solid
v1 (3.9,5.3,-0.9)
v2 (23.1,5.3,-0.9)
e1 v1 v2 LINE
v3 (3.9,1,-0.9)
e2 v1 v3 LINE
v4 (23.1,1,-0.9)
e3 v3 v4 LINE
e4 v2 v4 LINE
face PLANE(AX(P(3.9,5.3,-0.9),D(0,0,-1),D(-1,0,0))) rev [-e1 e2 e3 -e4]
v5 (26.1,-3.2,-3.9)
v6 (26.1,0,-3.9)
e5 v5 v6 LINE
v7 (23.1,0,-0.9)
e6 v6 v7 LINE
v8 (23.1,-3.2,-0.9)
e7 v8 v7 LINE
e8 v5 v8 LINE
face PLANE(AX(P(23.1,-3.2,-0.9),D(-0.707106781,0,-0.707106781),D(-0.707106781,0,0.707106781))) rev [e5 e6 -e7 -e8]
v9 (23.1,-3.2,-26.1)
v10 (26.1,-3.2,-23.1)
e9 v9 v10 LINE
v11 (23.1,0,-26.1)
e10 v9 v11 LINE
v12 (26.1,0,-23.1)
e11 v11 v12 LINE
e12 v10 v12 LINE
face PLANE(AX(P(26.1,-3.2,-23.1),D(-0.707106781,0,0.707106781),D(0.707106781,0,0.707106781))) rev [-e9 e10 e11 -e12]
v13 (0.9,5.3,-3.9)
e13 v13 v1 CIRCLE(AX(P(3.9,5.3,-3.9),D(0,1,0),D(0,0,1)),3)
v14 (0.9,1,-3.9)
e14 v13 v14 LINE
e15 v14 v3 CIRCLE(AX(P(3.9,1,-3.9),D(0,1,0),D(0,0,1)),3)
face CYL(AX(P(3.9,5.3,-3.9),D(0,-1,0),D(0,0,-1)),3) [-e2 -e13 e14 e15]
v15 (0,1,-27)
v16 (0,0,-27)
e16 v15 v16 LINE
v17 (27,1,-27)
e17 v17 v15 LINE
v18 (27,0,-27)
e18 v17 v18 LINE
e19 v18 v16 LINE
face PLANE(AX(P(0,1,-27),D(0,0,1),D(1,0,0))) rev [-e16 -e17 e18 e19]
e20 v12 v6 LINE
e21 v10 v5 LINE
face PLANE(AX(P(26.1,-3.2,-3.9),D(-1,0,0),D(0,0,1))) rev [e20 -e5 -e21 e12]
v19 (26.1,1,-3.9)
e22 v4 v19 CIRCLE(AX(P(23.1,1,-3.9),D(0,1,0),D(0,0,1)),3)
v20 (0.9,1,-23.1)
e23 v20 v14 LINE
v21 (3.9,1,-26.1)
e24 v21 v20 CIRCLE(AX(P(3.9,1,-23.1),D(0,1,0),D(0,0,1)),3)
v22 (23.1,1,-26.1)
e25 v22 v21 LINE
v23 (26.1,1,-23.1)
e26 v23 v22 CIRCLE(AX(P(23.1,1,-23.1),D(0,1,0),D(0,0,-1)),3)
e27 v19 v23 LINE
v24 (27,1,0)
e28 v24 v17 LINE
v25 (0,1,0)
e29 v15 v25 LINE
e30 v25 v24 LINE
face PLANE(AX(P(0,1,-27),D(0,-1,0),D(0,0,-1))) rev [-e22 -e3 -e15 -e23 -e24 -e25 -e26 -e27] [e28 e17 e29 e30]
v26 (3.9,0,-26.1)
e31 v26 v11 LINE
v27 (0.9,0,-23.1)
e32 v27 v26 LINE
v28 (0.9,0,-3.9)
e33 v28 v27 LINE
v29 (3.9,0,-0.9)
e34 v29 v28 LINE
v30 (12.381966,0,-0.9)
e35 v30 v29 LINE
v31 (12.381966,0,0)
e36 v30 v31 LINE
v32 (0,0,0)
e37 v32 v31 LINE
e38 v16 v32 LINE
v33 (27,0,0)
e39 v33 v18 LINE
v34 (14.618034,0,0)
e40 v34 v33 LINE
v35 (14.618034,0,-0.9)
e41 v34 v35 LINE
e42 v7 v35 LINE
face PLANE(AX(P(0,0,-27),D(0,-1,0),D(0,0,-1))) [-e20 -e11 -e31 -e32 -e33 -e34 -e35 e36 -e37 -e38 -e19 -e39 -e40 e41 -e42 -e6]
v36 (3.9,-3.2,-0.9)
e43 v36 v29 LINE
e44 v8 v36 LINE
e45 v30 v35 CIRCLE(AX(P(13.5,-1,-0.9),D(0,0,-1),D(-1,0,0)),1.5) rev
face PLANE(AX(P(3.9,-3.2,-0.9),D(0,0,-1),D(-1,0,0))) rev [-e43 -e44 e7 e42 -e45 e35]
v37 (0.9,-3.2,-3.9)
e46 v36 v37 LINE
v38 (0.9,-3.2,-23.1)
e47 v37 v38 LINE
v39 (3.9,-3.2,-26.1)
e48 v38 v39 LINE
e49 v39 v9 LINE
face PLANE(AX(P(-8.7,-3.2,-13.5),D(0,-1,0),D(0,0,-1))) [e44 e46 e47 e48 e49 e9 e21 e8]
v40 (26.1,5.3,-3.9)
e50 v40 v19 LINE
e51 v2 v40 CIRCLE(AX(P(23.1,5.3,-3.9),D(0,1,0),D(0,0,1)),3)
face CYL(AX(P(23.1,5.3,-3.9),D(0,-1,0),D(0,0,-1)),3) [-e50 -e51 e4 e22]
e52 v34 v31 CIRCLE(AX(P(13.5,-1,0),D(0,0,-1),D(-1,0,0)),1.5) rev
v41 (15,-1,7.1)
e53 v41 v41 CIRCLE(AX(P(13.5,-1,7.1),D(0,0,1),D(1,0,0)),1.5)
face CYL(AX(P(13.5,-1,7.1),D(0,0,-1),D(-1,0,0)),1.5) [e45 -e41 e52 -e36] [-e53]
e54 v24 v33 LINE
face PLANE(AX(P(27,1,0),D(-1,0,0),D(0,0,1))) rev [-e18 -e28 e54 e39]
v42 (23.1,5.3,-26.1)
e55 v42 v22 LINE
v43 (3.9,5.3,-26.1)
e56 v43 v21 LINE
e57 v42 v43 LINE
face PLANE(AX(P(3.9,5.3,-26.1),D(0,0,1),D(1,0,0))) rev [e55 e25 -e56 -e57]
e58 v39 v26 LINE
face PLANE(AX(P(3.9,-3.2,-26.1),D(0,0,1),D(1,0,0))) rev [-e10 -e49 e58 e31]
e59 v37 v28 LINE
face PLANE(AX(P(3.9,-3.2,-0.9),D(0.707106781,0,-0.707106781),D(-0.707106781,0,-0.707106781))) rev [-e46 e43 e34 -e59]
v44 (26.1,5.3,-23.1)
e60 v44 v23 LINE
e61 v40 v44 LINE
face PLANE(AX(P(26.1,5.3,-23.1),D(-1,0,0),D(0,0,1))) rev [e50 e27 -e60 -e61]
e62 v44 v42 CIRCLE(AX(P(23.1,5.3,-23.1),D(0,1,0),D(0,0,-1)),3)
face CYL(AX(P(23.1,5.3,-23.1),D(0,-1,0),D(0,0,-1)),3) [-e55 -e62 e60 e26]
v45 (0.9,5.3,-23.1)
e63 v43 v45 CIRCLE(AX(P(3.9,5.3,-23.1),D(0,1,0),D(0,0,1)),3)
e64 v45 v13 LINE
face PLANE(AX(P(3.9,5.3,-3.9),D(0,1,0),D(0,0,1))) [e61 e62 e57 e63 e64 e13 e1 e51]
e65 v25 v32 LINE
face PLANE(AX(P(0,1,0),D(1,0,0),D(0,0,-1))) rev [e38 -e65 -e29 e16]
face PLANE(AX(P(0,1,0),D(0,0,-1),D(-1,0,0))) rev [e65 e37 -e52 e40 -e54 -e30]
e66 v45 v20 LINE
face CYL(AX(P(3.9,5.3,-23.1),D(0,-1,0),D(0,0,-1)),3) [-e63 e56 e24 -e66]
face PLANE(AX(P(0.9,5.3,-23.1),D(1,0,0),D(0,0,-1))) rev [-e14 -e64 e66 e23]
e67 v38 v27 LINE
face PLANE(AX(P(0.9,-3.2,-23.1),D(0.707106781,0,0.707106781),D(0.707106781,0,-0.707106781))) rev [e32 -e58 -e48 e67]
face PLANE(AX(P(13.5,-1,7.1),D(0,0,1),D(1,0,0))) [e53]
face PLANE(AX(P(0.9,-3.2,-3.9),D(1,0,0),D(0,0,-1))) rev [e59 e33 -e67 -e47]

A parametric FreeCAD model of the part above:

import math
import FreeCAD as App
import Part
import Sketcher
from FreeCAD import Vector

doc = App.newDocument("Part")
body = doc.addObject("PartDesign::Body", "Body")

# Sketch on XZ plane
sketch1 = doc.addObject("Sketcher::SketchObject", "Sketch")
body.addObject(sketch1)
sketch1.AttachmentSupport = (doc.XZ_Plane, [""])
sketch1.MapMode = "FlatFace"
sketch1.addGeometry([
    Part.LineSegment(Vector(0, -27, 0), Vector(0, 0, 0)),
    Part.LineSegment(Vector(0, 0, 0), Vector(27, 0, 0)),
    Part.LineSegment(Vector(27, 0, 0), Vector(27, -27, 0)),
    Part.LineSegment(Vector(27, -27, 0), Vector(0, -27, 0)),
], False)
sketch1.addConstraint([
    Sketcher.Constraint("Coincident", 0, 2, 1, 1),
    Sketcher.Constraint("Coincident", 1, 2, 2, 1),
    Sketcher.Constraint("Coincident", 2, 2, 3, 1),
    Sketcher.Constraint("Coincident", 3, 2, 0, 1),
    Sketcher.Constraint("Vertical", 0),
    Sketcher.Constraint("Horizontal", 1),
    Sketcher.Constraint("Vertical", 2),
    Sketcher.Constraint("Horizontal", 3),
    Sketcher.Constraint("Coincident", 0, 2, -1, 1),
    Sketcher.Constraint("Equal", 3, 0),
    Sketcher.Constraint("DistanceX", 1, 1, 1, 2, 27.0),
])
pad1 = doc.addObject("PartDesign::Pad", "Pad")
body.addObject(pad1)
pad1.Profile = sketch1
pad1.Length = 1
pad1.Reversed = True

# Sketch on XZ plane
sketch2 = doc.addObject("Sketcher::SketchObject", "Sketch001")
body.addObject(sketch2)
sketch2.AttachmentSupport = (doc.XZ_Plane, [""])
sketch2.MapMode = "FlatFace"
sketch2.AttachmentOffset = App.Placement(Vector(0, 0, -1), App.Rotation())
sketch2.addGeometry([
    Part.LineSegment(Vector(23.1, -26.1, 0), Vector(3.9, -26.1, 0)),  # 0
    Part.ArcOfCircle(Part.Circle(Vector(3.9, -23.1, 0), Vector(0, 0, 1), 3), math.radians(180), math.radians(270)),  # 1
    Part.LineSegment(Vector(0.9, -23.1, 0), Vector(0.9, -3.9, 0)),  # 2
    Part.ArcOfCircle(Part.Circle(Vector(3.9, -3.9, 0), Vector(0, 0, 1), 3), math.radians(90), math.radians(180)),  # 3
    Part.LineSegment(Vector(3.9, -0.9, 0), Vector(23.1, -0.9, 0)),  # 4
    Part.ArcOfCircle(Part.Circle(Vector(23.1, -3.9, 0), Vector(0, 0, 1), 3), math.radians(0), math.radians(90)),  # 5
    Part.LineSegment(Vector(26.1, -3.9, 0), Vector(26.1, -23.1, 0)),  # 6
    Part.ArcOfCircle(Part.Circle(Vector(23.1, -23.1, 0), Vector(0, 0, 1), 3), math.radians(-90), math.radians(0)),  # 7
], False)
sketch2.addConstraint([
    Sketcher.Constraint("Tangent", 0, 2, 1, 2),
    Sketcher.Constraint("Tangent", 1, 1, 2, 1),
    Sketcher.Constraint("Tangent", 2, 2, 3, 2),
    Sketcher.Constraint("Tangent", 3, 1, 4, 1),
    Sketcher.Constraint("Tangent", 4, 2, 5, 2),
    Sketcher.Constraint("Tangent", 5, 1, 6, 1),
    Sketcher.Constraint("Tangent", 6, 2, 7, 2),
    Sketcher.Constraint("Tangent", 7, 1, 0, 1),
    Sketcher.Constraint("Horizontal", 0),
    Sketcher.Constraint("Vertical", 2),
    Sketcher.Constraint("Horizontal", 4),
    Sketcher.Constraint("Vertical", 6),
    Sketcher.Constraint("Equal", 1, 3),
    Sketcher.Constraint("Equal", 3, 5),
    Sketcher.Constraint("Equal", 5, 7),
    Sketcher.Constraint("Equal", 4, 2),
    Sketcher.Constraint("Radius", 1, 3.0),
    Sketcher.Constraint("DistanceX", 0, 2, 0, 1, 19.2),
    Sketcher.Constraint("DistanceX", -1, 1, 1, 3, 3.9),
    Sketcher.Constraint("DistanceY", 1, 3, -1, 1, 23.1),
])
pad2 = doc.addObject("PartDesign::Pad", "Pad001")
body.addObject(pad2)
pad2.Profile = sketch2
pad2.Length = 4.3
pad2.Reversed = True

# Sketch on XZ plane
sketch3 = doc.addObject("Sketcher::SketchObject", "Sketch002")
body.addObject(sketch3)
sketch3.AttachmentSupport = (doc.XZ_Plane, [""])
sketch3.MapMode = "FlatFace"
sketch3.addGeometry([
    Part.LineSegment(Vector(23.1, -0.9, 0), Vector(3.9, -0.9, 0)),  # 0
    Part.LineSegment(Vector(3.9, -0.9, 0), Vector(0.9, -3.9, 0)),  # 1
    Part.LineSegment(Vector(0.9, -3.9, 0), Vector(0.9, -23.1, 0)),  # 2
    Part.LineSegment(Vector(0.9, -23.1, 0), Vector(3.9, -26.1, 0)),  # 3
    Part.LineSegment(Vector(3.9, -26.1, 0), Vector(23.1, -26.1, 0)),  # 4
    Part.LineSegment(Vector(23.1, -26.1, 0), Vector(26.1, -23.1, 0)),  # 5
    Part.LineSegment(Vector(26.1, -23.1, 0), Vector(26.1, -3.9, 0)),  # 6
    Part.LineSegment(Vector(26.1, -3.9, 0), Vector(23.1, -0.9, 0)),  # 7
], False)
sketch3.addConstraint([
    Sketcher.Constraint("Coincident", 0, 2, 1, 1),
    Sketcher.Constraint("Coincident", 1, 2, 2, 1),
    Sketcher.Constraint("Coincident", 2, 2, 3, 1),
    Sketcher.Constraint("Coincident", 3, 2, 4, 1),
    Sketcher.Constraint("Coincident", 4, 2, 5, 1),
    Sketcher.Constraint("Coincident", 5, 2, 6, 1),
    Sketcher.Constraint("Coincident", 6, 2, 7, 1),
    Sketcher.Constraint("Coincident", 7, 2, 0, 1),
    Sketcher.Constraint("Horizontal", 0),
    Sketcher.Constraint("Vertical", 2),
    Sketcher.Constraint("Horizontal", 4),
    Sketcher.Constraint("Vertical", 6),
    Sketcher.Constraint("Perpendicular", 1, 3),
    Sketcher.Constraint("Perpendicular", 3, 5),
    Sketcher.Constraint("Perpendicular", 5, 7),
    Sketcher.Constraint("Horizontal", 2, 2, 5, 2),
    Sketcher.Constraint("Horizontal", 1, 2, 6, 2),
    Sketcher.Constraint("Vertical", 0, 2, 3, 2),
    Sketcher.Constraint("Vertical", 4, 2, 7, 2),
    Sketcher.Constraint("Equal", 4, 2),
    Sketcher.Constraint("DistanceX", 0, 2, 0, 1, 19.2),
    Sketcher.Constraint("DistanceX", 1, 2, 0, 2, 3.0),
    Sketcher.Constraint("DistanceX", -1, 1, 0, 2, 3.9),
    Sketcher.Constraint("DistanceY", 0, 2, -1, 1, 0.9),
])
pad3 = doc.addObject("PartDesign::Pad", "Pad002")
body.addObject(pad3)
pad3.Profile = sketch3
pad3.Length = 3.2

# Sketch on XY plane
sketch4 = doc.addObject("Sketcher::SketchObject", "Sketch003")
body.addObject(sketch4)
sketch4.AttachmentSupport = (doc.XY_Plane, [""])
sketch4.MapMode = "FlatFace"
sketch4.AttachmentOffset = App.Placement(Vector(0, 0, -0.9), App.Rotation())
sketch4.addGeometry(Part.Circle(Vector(13.5, -1, 0), Vector(0, 0, 1), 1.5), False)
sketch4.addConstraint([
    Sketcher.Constraint("Diameter", 0, 3.0),
    Sketcher.Constraint("DistanceY", 0, 3, -1, 1, 1.0),
    Sketcher.Constraint("DistanceX", -1, 1, 0, 3, 13.5),
])
pad4 = doc.addObject("PartDesign::Pad", "Pad003")
body.addObject(pad4)
pad4.Profile = sketch4
pad4.Length = 8

doc.recompute()
